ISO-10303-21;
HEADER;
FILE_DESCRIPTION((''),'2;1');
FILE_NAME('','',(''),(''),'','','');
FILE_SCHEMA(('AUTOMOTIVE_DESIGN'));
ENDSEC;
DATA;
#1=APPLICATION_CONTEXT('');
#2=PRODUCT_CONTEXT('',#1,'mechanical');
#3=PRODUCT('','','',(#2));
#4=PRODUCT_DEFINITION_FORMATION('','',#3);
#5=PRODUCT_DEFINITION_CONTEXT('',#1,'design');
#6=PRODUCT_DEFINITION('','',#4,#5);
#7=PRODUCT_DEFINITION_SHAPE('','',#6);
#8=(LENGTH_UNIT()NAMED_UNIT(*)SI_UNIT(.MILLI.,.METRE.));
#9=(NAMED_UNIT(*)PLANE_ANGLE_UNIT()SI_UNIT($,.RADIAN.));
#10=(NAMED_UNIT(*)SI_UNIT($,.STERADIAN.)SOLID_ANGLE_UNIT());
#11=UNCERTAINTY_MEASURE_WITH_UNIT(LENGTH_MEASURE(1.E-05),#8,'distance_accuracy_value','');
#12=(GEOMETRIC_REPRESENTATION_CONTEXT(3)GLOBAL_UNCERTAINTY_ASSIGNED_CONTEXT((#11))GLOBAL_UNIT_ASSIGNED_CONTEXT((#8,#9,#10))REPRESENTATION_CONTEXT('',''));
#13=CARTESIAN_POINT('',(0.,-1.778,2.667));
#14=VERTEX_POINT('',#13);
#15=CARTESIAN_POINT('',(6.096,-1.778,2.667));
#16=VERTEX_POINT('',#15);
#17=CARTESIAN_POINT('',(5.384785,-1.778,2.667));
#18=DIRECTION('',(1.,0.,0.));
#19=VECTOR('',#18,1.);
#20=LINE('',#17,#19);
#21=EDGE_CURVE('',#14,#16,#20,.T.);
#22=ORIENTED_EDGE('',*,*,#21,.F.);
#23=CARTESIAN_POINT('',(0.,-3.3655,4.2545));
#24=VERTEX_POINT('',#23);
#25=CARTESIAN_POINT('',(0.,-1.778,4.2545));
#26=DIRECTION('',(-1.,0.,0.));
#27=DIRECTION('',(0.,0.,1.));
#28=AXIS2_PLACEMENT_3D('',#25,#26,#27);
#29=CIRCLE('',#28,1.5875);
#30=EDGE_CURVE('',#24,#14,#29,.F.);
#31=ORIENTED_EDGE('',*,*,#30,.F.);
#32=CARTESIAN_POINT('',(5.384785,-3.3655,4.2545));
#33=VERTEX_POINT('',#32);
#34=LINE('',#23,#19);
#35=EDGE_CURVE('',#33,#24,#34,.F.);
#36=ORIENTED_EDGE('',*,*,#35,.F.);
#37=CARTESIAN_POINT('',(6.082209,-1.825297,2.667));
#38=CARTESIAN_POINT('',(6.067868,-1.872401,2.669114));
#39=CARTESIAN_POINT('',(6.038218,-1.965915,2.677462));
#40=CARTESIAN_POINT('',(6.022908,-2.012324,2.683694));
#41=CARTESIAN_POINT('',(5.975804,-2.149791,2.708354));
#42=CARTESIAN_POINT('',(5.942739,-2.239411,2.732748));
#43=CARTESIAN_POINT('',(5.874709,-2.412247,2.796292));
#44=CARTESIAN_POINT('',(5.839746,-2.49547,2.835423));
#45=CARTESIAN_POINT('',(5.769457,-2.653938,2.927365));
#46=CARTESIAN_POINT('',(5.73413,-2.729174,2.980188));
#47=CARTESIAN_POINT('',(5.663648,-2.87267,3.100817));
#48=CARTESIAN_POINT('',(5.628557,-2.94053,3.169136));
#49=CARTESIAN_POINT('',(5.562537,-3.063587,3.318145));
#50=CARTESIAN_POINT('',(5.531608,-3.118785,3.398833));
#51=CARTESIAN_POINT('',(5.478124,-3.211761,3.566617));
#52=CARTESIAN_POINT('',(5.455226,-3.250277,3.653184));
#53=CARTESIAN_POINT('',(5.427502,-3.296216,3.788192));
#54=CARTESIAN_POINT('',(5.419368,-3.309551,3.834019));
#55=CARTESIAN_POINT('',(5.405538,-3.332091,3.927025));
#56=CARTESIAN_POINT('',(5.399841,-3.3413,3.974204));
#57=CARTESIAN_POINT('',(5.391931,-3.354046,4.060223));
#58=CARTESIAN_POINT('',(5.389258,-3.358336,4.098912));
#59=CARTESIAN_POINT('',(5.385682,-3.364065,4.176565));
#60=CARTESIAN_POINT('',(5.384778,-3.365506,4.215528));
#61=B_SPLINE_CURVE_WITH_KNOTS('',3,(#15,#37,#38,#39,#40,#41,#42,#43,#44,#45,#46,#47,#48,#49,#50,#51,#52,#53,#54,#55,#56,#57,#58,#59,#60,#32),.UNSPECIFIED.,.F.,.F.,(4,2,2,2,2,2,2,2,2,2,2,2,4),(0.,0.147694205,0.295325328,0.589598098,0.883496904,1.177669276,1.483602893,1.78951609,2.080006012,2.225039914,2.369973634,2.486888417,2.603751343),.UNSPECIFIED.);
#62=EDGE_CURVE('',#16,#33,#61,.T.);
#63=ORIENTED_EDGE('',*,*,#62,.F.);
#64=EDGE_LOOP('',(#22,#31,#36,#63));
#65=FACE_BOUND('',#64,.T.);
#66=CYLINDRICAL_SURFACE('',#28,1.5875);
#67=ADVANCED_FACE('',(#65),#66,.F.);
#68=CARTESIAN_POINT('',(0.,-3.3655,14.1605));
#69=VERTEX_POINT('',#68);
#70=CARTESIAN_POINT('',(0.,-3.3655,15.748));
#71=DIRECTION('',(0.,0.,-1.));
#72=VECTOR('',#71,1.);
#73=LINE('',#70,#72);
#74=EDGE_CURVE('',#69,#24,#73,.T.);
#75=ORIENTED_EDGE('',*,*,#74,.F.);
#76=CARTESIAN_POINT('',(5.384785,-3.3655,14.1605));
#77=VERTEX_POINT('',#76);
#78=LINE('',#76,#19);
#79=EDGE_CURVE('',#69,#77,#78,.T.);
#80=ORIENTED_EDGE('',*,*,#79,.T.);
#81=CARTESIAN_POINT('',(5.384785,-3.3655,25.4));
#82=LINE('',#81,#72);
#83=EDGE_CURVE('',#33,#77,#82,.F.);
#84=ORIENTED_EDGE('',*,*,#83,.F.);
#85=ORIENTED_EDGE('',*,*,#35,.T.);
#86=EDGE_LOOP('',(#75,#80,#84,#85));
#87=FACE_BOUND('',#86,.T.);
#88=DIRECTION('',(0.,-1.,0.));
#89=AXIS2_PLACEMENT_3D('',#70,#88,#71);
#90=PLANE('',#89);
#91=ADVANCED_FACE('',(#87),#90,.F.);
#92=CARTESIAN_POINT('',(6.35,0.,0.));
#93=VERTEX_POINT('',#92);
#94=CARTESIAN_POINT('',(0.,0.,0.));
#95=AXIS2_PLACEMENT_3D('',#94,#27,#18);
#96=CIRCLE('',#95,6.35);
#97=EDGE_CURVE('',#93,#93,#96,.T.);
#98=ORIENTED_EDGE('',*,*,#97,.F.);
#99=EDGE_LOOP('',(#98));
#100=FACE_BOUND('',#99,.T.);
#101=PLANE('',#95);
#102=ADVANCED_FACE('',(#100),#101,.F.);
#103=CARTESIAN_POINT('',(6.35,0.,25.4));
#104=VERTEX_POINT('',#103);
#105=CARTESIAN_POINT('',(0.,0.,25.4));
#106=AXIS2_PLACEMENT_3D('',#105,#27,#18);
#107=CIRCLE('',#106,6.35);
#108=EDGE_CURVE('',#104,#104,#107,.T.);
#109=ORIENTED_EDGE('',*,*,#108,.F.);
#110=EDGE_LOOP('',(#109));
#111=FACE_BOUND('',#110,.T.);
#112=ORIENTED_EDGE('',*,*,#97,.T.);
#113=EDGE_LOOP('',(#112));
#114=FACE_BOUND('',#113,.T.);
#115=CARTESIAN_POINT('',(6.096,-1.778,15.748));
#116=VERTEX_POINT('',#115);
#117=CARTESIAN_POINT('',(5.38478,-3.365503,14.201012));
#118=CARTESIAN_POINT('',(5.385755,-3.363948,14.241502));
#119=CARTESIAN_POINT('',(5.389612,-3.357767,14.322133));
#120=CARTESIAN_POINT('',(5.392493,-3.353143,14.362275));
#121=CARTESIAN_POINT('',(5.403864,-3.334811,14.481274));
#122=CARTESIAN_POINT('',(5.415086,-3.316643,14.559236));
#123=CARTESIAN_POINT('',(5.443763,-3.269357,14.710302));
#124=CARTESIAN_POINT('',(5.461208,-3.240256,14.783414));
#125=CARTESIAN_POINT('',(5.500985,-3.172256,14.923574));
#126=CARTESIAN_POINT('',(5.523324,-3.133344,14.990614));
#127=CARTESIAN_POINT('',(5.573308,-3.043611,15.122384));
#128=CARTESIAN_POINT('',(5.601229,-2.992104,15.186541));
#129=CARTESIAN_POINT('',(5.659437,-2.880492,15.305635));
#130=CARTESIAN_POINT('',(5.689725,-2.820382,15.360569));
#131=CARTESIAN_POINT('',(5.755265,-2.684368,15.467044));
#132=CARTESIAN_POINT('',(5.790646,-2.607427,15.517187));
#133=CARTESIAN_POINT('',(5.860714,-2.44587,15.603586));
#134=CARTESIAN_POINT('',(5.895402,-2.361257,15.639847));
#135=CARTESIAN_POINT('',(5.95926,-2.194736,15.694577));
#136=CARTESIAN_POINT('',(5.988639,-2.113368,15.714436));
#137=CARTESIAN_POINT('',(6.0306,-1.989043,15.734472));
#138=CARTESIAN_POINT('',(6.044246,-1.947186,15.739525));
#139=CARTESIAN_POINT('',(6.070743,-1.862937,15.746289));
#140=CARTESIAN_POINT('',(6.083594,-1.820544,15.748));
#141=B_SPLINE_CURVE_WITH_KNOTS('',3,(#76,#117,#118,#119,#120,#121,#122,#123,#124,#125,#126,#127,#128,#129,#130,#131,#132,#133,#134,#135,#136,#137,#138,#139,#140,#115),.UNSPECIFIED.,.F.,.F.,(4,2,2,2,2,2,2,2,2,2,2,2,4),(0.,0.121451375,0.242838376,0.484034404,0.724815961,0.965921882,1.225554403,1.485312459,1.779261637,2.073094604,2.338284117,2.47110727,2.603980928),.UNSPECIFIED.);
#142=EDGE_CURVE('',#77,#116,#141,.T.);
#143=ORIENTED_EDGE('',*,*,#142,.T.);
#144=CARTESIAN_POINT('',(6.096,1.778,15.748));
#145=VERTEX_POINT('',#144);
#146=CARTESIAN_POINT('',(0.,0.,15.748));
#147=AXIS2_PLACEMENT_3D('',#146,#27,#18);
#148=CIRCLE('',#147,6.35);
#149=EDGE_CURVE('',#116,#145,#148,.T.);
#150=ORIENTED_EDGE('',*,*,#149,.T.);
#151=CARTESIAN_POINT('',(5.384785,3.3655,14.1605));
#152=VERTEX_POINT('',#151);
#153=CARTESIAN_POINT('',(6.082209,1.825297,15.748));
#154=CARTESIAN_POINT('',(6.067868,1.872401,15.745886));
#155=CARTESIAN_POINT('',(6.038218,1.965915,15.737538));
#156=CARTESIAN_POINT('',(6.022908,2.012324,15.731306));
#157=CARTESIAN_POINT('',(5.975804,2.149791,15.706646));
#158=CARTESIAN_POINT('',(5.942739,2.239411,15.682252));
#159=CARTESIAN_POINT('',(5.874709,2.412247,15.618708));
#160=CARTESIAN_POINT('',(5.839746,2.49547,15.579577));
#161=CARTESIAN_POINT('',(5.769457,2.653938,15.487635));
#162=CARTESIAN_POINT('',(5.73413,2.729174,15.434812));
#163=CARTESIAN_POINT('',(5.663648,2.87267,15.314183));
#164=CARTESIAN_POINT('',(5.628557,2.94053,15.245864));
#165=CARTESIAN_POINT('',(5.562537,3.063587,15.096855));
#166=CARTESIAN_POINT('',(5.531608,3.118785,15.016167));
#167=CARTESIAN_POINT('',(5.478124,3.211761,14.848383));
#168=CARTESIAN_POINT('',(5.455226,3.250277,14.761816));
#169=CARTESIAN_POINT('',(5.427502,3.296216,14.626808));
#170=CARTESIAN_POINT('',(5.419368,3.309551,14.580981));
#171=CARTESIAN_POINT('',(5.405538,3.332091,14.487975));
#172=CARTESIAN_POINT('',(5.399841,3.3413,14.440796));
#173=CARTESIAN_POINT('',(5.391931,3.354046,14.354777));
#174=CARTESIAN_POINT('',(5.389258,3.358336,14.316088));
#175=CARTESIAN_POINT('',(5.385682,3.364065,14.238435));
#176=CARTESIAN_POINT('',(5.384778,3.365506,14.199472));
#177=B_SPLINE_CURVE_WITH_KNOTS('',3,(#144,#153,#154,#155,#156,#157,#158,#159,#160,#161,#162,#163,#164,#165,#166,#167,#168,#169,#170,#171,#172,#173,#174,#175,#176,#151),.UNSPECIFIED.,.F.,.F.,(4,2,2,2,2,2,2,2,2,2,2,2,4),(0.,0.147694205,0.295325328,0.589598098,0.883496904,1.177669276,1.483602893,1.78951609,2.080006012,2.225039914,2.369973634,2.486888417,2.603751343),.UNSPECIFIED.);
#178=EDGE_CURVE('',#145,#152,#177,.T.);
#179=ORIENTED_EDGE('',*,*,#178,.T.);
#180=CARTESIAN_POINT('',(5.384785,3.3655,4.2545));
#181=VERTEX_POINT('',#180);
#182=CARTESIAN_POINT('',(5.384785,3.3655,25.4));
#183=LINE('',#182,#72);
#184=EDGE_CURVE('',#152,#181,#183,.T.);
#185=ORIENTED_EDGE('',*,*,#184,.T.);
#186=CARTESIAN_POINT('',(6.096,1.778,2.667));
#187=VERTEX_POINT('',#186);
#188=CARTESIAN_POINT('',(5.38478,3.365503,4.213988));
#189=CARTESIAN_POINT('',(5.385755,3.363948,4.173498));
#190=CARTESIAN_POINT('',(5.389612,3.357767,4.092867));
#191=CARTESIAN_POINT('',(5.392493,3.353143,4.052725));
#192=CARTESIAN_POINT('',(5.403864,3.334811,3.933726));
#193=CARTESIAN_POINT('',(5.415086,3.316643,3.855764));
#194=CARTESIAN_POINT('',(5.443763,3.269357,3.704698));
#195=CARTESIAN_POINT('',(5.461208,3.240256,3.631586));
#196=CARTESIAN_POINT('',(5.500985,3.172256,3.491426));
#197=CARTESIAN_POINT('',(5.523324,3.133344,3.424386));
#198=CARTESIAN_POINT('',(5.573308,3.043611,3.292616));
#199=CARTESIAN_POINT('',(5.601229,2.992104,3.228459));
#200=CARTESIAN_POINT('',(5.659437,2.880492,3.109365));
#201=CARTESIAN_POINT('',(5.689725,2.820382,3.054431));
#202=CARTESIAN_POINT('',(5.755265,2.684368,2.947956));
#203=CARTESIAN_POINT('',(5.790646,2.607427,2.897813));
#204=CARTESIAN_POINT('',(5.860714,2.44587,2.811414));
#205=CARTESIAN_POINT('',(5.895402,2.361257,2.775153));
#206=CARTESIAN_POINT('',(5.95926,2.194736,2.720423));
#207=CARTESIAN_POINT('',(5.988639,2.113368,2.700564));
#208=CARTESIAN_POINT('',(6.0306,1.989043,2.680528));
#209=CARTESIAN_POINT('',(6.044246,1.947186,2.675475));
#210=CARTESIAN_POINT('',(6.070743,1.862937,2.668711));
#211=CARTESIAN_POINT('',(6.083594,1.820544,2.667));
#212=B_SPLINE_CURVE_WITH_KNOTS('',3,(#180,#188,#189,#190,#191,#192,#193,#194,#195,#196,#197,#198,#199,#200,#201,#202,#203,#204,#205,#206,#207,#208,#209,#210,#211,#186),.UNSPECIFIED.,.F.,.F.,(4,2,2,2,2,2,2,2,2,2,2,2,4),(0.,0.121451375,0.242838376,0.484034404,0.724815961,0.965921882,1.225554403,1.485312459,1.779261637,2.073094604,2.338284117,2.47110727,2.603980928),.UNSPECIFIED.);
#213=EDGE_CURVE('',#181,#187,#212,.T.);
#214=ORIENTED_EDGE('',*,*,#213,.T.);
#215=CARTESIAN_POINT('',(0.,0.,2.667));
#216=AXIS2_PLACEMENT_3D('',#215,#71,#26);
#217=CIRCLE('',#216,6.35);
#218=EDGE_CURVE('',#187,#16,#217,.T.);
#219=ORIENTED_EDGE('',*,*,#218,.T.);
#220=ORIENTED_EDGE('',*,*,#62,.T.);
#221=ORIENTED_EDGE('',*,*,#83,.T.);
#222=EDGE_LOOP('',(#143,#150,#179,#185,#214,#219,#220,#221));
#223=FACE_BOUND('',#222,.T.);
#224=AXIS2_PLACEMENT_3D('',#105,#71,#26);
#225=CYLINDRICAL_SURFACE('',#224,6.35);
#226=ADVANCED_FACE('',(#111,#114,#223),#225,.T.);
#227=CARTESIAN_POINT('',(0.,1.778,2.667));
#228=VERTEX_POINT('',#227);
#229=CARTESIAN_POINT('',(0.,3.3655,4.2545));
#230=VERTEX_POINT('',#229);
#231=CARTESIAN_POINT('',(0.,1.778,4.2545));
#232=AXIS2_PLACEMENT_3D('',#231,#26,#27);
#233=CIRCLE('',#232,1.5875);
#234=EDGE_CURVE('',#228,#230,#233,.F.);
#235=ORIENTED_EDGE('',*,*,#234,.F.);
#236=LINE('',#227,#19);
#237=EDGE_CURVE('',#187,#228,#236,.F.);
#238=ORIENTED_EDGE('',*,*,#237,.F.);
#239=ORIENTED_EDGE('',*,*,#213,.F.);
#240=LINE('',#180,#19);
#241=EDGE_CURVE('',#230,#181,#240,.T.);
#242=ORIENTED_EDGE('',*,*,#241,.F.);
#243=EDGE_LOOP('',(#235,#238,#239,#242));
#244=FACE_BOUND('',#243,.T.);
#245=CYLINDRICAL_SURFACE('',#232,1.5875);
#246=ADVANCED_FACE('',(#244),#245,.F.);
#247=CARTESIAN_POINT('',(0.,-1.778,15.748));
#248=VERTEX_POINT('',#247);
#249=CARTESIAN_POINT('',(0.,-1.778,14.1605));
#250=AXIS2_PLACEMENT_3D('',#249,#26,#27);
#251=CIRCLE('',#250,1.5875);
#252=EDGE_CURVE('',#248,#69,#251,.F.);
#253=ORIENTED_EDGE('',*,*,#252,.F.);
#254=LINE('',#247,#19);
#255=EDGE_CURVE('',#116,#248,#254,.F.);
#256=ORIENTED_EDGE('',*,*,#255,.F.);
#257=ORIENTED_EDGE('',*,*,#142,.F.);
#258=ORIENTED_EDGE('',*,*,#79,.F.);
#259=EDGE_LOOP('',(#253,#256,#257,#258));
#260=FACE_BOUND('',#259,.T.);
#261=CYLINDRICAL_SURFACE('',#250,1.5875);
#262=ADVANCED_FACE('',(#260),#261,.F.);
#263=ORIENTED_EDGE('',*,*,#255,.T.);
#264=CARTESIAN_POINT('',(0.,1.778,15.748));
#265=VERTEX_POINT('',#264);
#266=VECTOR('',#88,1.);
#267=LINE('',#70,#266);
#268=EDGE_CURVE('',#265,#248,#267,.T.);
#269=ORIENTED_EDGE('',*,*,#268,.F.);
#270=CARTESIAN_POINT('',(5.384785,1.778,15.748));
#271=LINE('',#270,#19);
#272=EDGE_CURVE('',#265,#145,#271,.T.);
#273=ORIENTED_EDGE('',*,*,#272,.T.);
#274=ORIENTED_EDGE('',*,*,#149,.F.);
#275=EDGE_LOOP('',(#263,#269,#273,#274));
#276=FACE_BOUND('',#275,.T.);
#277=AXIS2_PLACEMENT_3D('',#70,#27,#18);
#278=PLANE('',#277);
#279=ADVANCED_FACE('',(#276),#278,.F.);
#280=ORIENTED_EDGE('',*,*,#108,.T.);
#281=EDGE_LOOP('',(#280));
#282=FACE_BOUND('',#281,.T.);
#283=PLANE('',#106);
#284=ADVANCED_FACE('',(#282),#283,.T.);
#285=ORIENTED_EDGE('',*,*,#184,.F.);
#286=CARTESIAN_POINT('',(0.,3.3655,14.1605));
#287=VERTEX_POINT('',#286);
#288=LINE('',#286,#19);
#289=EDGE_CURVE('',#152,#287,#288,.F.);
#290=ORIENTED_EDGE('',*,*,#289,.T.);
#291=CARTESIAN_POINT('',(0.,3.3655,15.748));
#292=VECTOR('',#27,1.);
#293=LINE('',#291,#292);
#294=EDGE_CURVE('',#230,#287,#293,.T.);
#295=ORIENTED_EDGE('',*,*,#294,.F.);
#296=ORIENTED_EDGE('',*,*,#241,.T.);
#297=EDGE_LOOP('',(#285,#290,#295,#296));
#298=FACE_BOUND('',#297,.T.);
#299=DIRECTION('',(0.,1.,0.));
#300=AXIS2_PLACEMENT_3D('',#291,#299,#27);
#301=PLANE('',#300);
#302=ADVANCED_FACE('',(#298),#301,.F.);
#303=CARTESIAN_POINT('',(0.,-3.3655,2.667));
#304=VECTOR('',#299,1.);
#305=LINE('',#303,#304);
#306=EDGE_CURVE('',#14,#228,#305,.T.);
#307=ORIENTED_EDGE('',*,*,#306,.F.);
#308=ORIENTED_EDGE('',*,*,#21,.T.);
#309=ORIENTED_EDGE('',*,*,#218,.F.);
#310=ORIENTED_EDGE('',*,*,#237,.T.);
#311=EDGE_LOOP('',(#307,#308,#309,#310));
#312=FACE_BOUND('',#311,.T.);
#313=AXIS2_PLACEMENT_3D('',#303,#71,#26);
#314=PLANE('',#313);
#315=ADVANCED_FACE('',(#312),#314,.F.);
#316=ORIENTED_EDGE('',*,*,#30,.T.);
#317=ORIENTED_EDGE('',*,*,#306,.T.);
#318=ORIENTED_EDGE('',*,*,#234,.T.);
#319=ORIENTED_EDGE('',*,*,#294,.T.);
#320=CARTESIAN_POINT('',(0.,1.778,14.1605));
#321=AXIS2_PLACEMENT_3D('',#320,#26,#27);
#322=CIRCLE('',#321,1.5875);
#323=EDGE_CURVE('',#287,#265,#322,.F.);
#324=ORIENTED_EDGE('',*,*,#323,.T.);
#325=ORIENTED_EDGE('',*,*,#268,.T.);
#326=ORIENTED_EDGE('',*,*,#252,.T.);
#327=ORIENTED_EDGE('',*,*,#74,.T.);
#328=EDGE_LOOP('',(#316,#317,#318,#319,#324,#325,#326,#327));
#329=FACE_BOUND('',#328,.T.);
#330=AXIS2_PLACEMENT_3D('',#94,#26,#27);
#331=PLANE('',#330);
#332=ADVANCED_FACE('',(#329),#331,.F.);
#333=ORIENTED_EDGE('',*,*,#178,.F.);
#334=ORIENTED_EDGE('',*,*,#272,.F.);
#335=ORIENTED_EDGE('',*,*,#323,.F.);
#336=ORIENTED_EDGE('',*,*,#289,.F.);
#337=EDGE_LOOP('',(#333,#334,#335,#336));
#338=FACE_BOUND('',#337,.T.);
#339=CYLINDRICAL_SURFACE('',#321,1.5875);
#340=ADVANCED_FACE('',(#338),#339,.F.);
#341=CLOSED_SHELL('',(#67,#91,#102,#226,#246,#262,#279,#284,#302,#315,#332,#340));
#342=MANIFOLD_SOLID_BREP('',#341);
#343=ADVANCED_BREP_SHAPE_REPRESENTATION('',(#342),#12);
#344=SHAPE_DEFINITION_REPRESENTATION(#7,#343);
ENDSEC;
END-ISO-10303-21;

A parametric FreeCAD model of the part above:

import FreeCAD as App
import Part
import Sketcher

V = App.Vector
Q = App.Units.Quantity


def edges_at(feature, points):
    """Names of the edges that pass closest to the given points."""
    edges = feature.Shape.Edges
    near = lambda p: min(range(len(edges)), key=lambda i: edges[i].distToShape(Part.Vertex(*p))[0])
    return sorted({f"Edge{near(p) + 1}" for p in points})

doc = App.newDocument("Part")
body = doc.addObject("PartDesign::Body", "Body")

# Sketch on XY plane
sketch1 = doc.addObject("Sketcher::SketchObject", "Sketch")
body.addObject(sketch1)
sketch1.AttachmentSupport = (doc.XY_Plane, [""])
sketch1.MapMode = "FlatFace"
sketch1.addGeometry(Part.Circle(V(0, 0, 0), V(0, 0, 1), 6), False)
sketch1.addConstraint([
    Sketcher.Constraint("Coincident", 0, 3, -1, 1),
    Sketcher.Constraint("Diameter", 0, Q("0.5 in")),
])
pad1 = doc.addObject("PartDesign::Pad", "Pad")
body.addObject(pad1)
pad1.Profile = sketch1
pad1.Length = Q("1 in")

# Sketch on YZ plane
sketch2 = doc.addObject("Sketcher::SketchObject", "Sketch001")
body.addObject(sketch2)
sketch2.AttachmentSupport = (doc.YZ_Plane, [""])
sketch2.MapMode = "FlatFace"
sketch2.AttachmentOffset = App.Placement(V(0, 0, 0.25 * 25.4), App.Rotation())
sketch2.addGeometry([
    Part.LineSegment(V(3, 16, 0), V(-3, 16, 0)),
    Part.LineSegment(V(-3, 16, 0), V(-3, 3, 0)),
    Part.LineSegment(V(-3, 3, 0), V(3, 3, 0)),
    Part.LineSegment(V(3, 3, 0), V(3, 16, 0)),
], False)
sketch2.addConstraint([
    Sketcher.Constraint("Coincident", 0, 2, 1, 1),
    Sketcher.Constraint("Coincident", 1, 2, 2, 1),
    Sketcher.Constraint("Coincident", 2, 2, 3, 1),
    Sketcher.Constraint("Coincident", 3, 2, 0, 1),
    Sketcher.Constraint("Horizontal", 0),
    Sketcher.Constraint("Vertical", 1),
    Sketcher.Constraint("Horizontal", 2),
    Sketcher.Constraint("Vertical", 3),
    Sketcher.Constraint("DistanceX", 0, 2, 0, 1, Q("0.265 in")),
    Sketcher.Constraint("DistanceY", 1, 2, 1, 1, Q("0.515 in")),
    Sketcher.Constraint("DistanceY", -1, 1, 0, 2, Q("0.62 in")),
    Sketcher.Constraint("DistanceX", 0, 2, -1, 1, Q("0.1325 in")),
])
pocket1 = doc.addObject("PartDesign::Pocket", "Pocket")
body.addObject(pocket1)
pocket1.Profile = sketch2
pocket1.Length = Q("0.25 in")
doc.recompute()

fillet = doc.addObject("PartDesign::Fillet", "Fillet")
body.addObject(fillet)
fillet.Base = (pocket1, edges_at(pocket1, [
    (2.692, -3.365, 15.748),
    (2.692, 3.365, 15.748),
    (2.692, 3.365, 2.667),
    (2.692, -3.365, 2.667),
]))
fillet.Radius = Q("0.0625 in")

doc.recompute()
